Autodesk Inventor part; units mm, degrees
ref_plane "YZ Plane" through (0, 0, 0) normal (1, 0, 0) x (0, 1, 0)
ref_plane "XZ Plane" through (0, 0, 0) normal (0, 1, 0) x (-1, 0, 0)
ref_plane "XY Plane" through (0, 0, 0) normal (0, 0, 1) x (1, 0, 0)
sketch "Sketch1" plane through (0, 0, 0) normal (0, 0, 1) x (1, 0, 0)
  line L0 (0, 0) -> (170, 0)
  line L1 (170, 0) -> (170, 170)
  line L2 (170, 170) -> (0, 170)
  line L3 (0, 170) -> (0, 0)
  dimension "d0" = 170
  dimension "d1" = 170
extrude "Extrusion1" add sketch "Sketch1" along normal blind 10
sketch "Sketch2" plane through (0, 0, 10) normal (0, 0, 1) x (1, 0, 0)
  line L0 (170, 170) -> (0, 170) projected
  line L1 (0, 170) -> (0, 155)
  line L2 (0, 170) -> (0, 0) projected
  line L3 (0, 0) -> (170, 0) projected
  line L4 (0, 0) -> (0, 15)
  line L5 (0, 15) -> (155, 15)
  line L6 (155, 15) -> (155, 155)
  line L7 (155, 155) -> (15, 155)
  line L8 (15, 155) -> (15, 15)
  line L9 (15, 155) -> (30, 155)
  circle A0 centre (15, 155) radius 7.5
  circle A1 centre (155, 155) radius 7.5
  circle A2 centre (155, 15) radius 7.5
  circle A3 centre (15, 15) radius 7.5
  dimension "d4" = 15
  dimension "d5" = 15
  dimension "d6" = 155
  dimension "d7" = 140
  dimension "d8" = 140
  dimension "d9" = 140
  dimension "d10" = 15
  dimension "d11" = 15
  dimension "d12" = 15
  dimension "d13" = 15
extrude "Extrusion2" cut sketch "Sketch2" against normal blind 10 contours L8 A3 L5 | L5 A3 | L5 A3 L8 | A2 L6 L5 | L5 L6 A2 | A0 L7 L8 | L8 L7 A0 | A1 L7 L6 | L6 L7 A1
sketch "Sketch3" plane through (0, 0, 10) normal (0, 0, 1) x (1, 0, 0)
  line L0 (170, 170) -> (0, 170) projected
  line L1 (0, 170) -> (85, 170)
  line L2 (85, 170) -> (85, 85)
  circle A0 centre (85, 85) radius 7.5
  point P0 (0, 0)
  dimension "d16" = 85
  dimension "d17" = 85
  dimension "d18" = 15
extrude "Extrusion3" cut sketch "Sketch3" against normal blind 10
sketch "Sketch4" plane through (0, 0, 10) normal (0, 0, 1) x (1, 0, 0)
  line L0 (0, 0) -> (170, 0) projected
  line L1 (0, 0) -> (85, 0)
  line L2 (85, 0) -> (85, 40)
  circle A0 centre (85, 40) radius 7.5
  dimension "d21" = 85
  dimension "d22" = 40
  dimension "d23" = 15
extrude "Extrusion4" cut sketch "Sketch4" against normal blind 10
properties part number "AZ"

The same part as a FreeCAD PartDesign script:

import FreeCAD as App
import Part
import Sketcher

V = App.Vector


def add_polygon(sketch, points):
    """Adds a closed chain of lines whose ends are joined by coincident constraints."""
    first, n = sketch.GeometryCount, len(points)
    for a, b in zip(points, points[1:] + points[:1]):
        sketch.addGeometry(Part.LineSegment(App.Vector(*a, 0), App.Vector(*b, 0)), False)
    for i in range(n):
        sketch.addConstraint(Sketcher.Constraint("Coincident", first + i, 2, first + (i + 1) % n, 1))

doc = App.newDocument("Part")
body = doc.addObject("PartDesign::Body", "Body")

# Sketch on XY plane
sketch1 = doc.addObject("Sketcher::SketchObject", "Sketch")
body.addObject(sketch1)
sketch1.AttachmentSupport = (doc.XY_Plane, [""])
sketch1.MapMode = "FlatFace"
add_polygon(sketch1, [(0, 170), (0, 0), (170, 0), (170, 170)])  # lines 0-3
sketch1.addConstraint([
    Sketcher.Constraint("Vertical", 0),
    Sketcher.Constraint("Horizontal", 1),
    Sketcher.Constraint("Vertical", 2),
    Sketcher.Constraint("Horizontal", 3),
    Sketcher.Constraint("Coincident", 0, 2, -1, 1),
    Sketcher.Constraint("Equal", 3, 0),
    Sketcher.Constraint("DistanceX", 1, 1, 1, 2, 170.0),
])
pad1 = doc.addObject("PartDesign::Pad", "Pad")
body.addObject(pad1)
pad1.Profile = sketch1
pad1.Length = 10

# Sketch on XY plane
sketch2 = doc.addObject("Sketcher::SketchObject", "Sketch001")
body.addObject(sketch2)
sketch2.AttachmentSupport = (doc.XY_Plane, [""])
sketch2.MapMode = "FlatFace"
sketch2.AttachmentOffset = App.Placement(V(0, 0, 10), App.Rotation())
sketch2.addGeometry([
    Part.Circle(V(15, 15, 0), V(0, 0, 1), 8),
    Part.Circle(V(155, 15, 0), V(0, 0, 1), 8),
    Part.Circle(V(15, 155, 0), V(0, 0, 1), 8),
    Part.Circle(V(155, 155, 0), V(0, 0, 1), 8),
], False)
sketch2.addConstraint([
    Sketcher.Constraint("Equal", 0, 1),
    Sketcher.Constraint("Equal", 1, 2),
    Sketcher.Constraint("Equal", 2, 3),
    Sketcher.Constraint("Horizontal", 0, 3, 1, 3),
    Sketcher.Constraint("Horizontal", 2, 3, 3, 3),
    Sketcher.Constraint("Vertical", 0, 3, 2, 3),
    Sketcher.Constraint("Vertical", 1, 3, 3, 3),
    Sketcher.Constraint("Diameter", 0, 15.0),
    Sketcher.Constraint("DistanceX", -1, 1, 0, 3, 15.0),
    Sketcher.Constraint("DistanceY", -1, 1, 0, 3, 15.0),
    Sketcher.Constraint("DistanceX", -1, 1, 1, 3, 155.0),
    Sketcher.Constraint("DistanceY", -1, 1, 2, 3, 155.0),
])
pocket1 = doc.addObject("PartDesign::Pocket", "Pocket")
body.addObject(pocket1)
pocket1.Profile = sketch2
pocket1.Length = 10

# Sketch on XY plane
sketch3 = doc.addObject("Sketcher::SketchObject", "Sketch002")
body.addObject(sketch3)
sketch3.AttachmentSupport = (doc.XY_Plane, [""])
sketch3.MapMode = "FlatFace"
sketch3.AttachmentOffset = App.Placement(V(0, 0, 10), App.Rotation())
sketch3.addGeometry(Part.Circle(V(85, 85, 0), V(0, 0, 1), 8), False)
sketch3.addConstraint([
    Sketcher.Constraint("Diameter", 0, 15.0),
    Sketcher.Constraint("DistanceX", -1, 1, 0, 3, 85.0),
    Sketcher.Constraint("DistanceY", -1, 1, 0, 3, 85.0),
])
pocket2 = doc.addObject("PartDesign::Pocket", "Pocket001")
body.addObject(pocket2)
pocket2.Profile = sketch3
pocket2.Length = 10

# Sketch on XY plane
sketch4 = doc.addObject("Sketcher::SketchObject", "Sketch003")
body.addObject(sketch4)
sketch4.AttachmentSupport = (doc.XY_Plane, [""])
sketch4.MapMode = "FlatFace"
sketch4.AttachmentOffset = App.Placement(V(0, 0, 10), App.Rotation())
sketch4.addGeometry(Part.Circle(V(85, 40, 0), V(0, 0, 1), 8), False)
sketch4.addConstraint([
    Sketcher.Constraint("Diameter", 0, 15.0),
    Sketcher.Constraint("DistanceX", -1, 1, 0, 3, 85.0),
    Sketcher.Constraint("DistanceY", -1, 1, 0, 3, 40.0),
])
pocket3 = doc.addObject("PartDesign::Pocket", "Pocket002")
body.addObject(pocket3)
pocket3.Profile = sketch4
pocket3.Length = 10

doc.recompute()
